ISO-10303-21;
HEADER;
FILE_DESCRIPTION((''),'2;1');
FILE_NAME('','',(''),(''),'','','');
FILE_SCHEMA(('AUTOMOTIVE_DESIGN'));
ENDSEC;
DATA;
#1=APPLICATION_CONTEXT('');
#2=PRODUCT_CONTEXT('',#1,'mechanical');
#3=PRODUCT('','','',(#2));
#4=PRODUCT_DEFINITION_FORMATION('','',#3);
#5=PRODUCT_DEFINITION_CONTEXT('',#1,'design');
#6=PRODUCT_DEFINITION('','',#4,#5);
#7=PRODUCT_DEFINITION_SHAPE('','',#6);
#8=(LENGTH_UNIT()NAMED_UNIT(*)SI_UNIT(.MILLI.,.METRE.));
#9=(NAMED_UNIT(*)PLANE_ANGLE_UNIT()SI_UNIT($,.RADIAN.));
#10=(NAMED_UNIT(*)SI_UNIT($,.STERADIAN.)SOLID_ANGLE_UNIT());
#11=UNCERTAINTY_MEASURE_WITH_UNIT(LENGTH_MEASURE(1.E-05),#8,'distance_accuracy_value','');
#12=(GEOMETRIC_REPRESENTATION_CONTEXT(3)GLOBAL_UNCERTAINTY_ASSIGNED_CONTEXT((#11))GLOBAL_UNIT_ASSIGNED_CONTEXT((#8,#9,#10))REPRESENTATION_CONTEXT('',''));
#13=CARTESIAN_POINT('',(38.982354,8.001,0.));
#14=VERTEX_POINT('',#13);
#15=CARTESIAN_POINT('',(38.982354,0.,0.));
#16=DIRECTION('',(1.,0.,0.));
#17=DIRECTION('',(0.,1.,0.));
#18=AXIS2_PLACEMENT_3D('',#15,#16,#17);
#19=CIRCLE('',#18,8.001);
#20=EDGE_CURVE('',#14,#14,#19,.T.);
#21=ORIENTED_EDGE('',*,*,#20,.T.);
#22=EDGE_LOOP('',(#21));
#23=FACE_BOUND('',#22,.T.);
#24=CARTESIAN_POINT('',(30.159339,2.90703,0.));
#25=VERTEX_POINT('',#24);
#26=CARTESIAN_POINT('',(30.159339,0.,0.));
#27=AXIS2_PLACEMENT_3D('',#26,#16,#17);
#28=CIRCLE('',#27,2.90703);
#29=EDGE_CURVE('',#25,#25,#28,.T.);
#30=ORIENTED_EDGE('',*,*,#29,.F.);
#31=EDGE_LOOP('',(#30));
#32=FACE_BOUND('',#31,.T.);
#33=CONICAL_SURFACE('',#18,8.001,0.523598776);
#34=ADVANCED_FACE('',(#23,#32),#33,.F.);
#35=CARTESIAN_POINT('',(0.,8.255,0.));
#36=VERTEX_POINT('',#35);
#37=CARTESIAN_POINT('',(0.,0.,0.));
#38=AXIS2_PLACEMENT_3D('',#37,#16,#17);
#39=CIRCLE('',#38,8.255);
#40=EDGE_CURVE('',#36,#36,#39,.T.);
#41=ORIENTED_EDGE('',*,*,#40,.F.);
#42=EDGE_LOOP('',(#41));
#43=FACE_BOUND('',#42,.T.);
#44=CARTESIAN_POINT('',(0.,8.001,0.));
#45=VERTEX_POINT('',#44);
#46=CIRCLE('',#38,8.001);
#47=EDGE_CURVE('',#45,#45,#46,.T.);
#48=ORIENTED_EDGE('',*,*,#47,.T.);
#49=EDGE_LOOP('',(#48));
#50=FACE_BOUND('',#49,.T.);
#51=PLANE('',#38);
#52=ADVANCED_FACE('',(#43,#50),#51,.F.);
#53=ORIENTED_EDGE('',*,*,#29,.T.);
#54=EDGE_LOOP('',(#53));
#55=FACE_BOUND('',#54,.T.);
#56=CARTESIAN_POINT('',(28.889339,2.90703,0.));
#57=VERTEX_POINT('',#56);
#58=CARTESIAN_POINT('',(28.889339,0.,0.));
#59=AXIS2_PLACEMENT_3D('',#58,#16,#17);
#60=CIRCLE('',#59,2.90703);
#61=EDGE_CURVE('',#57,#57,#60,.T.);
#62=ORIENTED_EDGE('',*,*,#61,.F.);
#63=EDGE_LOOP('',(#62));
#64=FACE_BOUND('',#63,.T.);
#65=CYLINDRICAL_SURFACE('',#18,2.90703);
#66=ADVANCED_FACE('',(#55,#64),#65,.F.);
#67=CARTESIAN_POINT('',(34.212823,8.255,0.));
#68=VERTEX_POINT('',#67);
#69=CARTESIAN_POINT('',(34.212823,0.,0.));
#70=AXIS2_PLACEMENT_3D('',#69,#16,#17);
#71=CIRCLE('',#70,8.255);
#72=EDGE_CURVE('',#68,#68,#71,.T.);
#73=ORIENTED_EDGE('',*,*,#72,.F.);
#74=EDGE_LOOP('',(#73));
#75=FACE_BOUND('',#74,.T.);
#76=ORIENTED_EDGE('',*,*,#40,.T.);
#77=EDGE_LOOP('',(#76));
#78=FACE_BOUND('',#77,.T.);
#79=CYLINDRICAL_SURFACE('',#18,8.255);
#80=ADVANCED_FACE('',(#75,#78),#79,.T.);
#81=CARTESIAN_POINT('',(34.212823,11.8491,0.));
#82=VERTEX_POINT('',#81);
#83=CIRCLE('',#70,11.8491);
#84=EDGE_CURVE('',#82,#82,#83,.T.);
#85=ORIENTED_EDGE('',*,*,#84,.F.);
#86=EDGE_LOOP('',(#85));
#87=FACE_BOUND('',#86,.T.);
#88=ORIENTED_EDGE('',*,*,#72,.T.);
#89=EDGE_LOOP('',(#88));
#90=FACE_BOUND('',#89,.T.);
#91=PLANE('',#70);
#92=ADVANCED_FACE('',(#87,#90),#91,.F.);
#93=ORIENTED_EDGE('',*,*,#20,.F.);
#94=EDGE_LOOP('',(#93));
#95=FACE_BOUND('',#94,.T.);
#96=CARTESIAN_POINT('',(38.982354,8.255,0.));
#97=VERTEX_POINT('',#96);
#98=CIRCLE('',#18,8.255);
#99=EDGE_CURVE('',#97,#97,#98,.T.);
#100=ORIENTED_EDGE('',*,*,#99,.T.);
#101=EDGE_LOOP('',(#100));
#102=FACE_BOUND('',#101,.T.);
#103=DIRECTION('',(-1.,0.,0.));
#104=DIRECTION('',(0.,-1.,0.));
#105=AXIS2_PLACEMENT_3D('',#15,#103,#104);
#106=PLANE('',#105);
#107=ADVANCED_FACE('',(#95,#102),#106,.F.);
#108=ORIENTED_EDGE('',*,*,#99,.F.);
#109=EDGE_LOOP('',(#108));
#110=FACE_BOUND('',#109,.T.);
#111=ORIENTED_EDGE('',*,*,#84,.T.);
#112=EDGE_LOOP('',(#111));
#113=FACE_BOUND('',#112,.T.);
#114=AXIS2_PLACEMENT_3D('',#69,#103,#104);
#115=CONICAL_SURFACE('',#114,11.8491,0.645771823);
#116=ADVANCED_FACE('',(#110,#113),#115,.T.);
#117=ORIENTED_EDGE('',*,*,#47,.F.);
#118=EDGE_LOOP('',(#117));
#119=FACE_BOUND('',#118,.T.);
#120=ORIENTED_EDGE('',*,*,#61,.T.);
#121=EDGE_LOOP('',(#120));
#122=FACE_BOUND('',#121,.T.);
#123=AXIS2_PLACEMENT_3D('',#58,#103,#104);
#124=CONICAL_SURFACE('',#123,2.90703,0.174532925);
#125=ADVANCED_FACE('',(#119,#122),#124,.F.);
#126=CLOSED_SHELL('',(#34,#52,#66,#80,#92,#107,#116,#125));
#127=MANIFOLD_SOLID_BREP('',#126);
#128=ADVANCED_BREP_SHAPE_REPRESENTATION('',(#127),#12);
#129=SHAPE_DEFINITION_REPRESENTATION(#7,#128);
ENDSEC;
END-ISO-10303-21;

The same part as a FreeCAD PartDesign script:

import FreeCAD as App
import Part
import Sketcher

V = App.Vector
Q = App.Units.Quantity


def add_polygon(sketch, points):
    """Adds a closed chain of lines whose ends are joined by coincident constraints."""
    first, n = sketch.GeometryCount, len(points)
    for a, b in zip(points, points[1:] + points[:1]):
        sketch.addGeometry(Part.LineSegment(App.Vector(*a, 0), App.Vector(*b, 0)), False)
    for i in range(n):
        sketch.addConstraint(Sketcher.Constraint("Coincident", first + i, 2, first + (i + 1) % n, 1))

doc = App.newDocument("Part")
body = doc.addObject("PartDesign::Body", "Body")

sketch1 = doc.addObject("Sketcher::SketchObject", "Sketch")
body.addObject(sketch1)
sketch1.AttachmentSupport = (doc.XY_Plane, [""])
sketch1.MapMode = "FlatFace"
add_polygon(sketch1, [(0, 8.26), (0, 8), (28.89, 2.91), (30.16, 2.91), (38.98, 8), (38.98, 8.26), (34.21, 11.85), (34.21, 8.26)])
sketch1.addConstraint([
    Sketcher.Constraint("Vertical", 0),
    Sketcher.Constraint("Horizontal", 2),
    Sketcher.Constraint("Vertical", 4),
    Sketcher.Constraint("Vertical", 6),
    Sketcher.Constraint("Horizontal", 7),
    Sketcher.Constraint("PointOnObject", 0, 2, -2),
    Sketcher.Constraint("Horizontal", 0, 2, 3, 2),
    Sketcher.Constraint("Horizontal", 4, 2, 6, 2),
    Sketcher.Constraint("Angle", 1, Q("-10 deg")),
    Sketcher.Constraint("Angle", 3, Q("30 deg")),
    Sketcher.Constraint("Angle", 5, Q("143 deg")),
    Sketcher.Constraint("DistanceX", 2, 1, 2, 2, Q("0.05 in")),
    Sketcher.Constraint("DistanceY", 0, 2, 0, 1, Q("0.01 in")),
    Sketcher.Constraint("DistanceY", 6, 2, 6, 1, Q("0.1415 in")),
    Sketcher.Constraint("DistanceY", -1, 1, 0, 2, Q("0.315 in")),
    Sketcher.Constraint("Distance", 3, Q("0.4011 in")),
])
revolution = doc.addObject("PartDesign::Revolution", "Revolution")
body.addObject(revolution)
revolution.Profile = sketch1
revolution.ReferenceAxis = (sketch1, ["H_Axis"])
revolution.Angle = 360

doc.recompute()
